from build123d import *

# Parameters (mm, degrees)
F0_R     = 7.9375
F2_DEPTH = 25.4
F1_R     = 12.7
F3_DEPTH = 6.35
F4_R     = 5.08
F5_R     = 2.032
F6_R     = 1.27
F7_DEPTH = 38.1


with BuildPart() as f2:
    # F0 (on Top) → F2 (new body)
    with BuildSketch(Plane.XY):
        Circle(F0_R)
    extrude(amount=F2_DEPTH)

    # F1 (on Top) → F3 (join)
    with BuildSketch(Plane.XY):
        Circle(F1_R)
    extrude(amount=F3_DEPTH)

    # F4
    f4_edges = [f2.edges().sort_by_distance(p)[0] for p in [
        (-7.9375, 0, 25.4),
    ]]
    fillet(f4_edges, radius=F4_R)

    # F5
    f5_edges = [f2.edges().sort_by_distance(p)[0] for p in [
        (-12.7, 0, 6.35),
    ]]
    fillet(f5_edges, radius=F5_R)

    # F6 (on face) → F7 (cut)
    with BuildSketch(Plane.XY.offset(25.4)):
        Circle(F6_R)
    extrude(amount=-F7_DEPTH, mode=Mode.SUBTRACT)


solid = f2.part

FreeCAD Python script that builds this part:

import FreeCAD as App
import Part
import Sketcher
from FreeCAD import Vector
Q = App.Units.Quantity


def edges_at(feature, points):
    """Names of the edges that pass closest to the given points."""
    edges = feature.Shape.Edges
    near = lambda p: min(range(len(edges)), key=lambda i: edges[i].distToShape(Part.Vertex(*p))[0])
    return sorted({f"Edge{near(p) + 1}" for p in points})

doc = App.newDocument("Part")
body = doc.addObject("PartDesign::Body", "Body")

sketch1 = body.newObject("Sketcher::SketchObject", "Sketch")
sketch1.AttachmentSupport = (doc.getObject("XY_Plane"), [""])
sketch1.MapMode = "FlatFace"
sketch1.addGeometry(Part.Circle(Vector(0, 0, 0), Vector(0, 0, 1), 7.9375), False)
sketch1.addConstraint(Sketcher.Constraint("Coincident", 0, 3, -1, 1))
sketch1.addConstraint(Sketcher.Constraint("Diameter", 0, Q("0.625 in")))
pad1 = body.newObject("PartDesign::Pad", "Pad")
pad1.Profile = sketch1
pad1.Length = Q("1 in")

sketch2 = body.newObject("Sketcher::SketchObject", "Sketch001")
sketch2.AttachmentSupport = (doc.getObject("XY_Plane"), [""])
sketch2.MapMode = "FlatFace"
sketch2.addGeometry(Part.Circle(Vector(0, 0, 0), Vector(0, 0, 1), 12.7), False)
sketch2.addConstraint(Sketcher.Constraint("Coincident", 0, 3, -1, 1))
sketch2.addConstraint(Sketcher.Constraint("Diameter", 0, Q("1 in")))
pad2 = body.newObject("PartDesign::Pad", "Pad001")
pad2.Profile = sketch2
pad2.Length = Q("0.25 in")
doc.recompute()

fillet = body.newObject("PartDesign::Fillet", "Fillet")
fillet.Base = (pad2, edges_at(pad2, [(-7.938, 0, 25.4)]))
fillet.Radius = Q("0.2 in")
doc.recompute()

fillet2 = body.newObject("PartDesign::Fillet", "Fillet001")
fillet2.Base = (fillet, edges_at(fillet, [(-12.7, 0, 6.35)]))
fillet2.Radius = Q("0.08 in")

sketch3 = body.newObject("Sketcher::SketchObject", "Sketch002")
sketch3.AttachmentSupport = (doc.getObject("XY_Plane"), [""])
sketch3.MapMode = "FlatFace"
sketch3.AttachmentOffset = App.Placement(Vector(0, 0, 1 * 25.4), App.Rotation())
sketch3.addGeometry(Part.Circle(Vector(0, 0, 0), Vector(0, 0, 1), 1.27), False)
sketch3.addConstraint(Sketcher.Constraint("Coincident", 0, 3, -1, 1))
sketch3.addConstraint(Sketcher.Constraint("Diameter", 0, Q("0.1 in")))
pocket1 = body.newObject("PartDesign::Pocket", "Pocket")
pocket1.Profile = sketch3
pocket1.Length = Q("1.5 in")

doc.recompute()
